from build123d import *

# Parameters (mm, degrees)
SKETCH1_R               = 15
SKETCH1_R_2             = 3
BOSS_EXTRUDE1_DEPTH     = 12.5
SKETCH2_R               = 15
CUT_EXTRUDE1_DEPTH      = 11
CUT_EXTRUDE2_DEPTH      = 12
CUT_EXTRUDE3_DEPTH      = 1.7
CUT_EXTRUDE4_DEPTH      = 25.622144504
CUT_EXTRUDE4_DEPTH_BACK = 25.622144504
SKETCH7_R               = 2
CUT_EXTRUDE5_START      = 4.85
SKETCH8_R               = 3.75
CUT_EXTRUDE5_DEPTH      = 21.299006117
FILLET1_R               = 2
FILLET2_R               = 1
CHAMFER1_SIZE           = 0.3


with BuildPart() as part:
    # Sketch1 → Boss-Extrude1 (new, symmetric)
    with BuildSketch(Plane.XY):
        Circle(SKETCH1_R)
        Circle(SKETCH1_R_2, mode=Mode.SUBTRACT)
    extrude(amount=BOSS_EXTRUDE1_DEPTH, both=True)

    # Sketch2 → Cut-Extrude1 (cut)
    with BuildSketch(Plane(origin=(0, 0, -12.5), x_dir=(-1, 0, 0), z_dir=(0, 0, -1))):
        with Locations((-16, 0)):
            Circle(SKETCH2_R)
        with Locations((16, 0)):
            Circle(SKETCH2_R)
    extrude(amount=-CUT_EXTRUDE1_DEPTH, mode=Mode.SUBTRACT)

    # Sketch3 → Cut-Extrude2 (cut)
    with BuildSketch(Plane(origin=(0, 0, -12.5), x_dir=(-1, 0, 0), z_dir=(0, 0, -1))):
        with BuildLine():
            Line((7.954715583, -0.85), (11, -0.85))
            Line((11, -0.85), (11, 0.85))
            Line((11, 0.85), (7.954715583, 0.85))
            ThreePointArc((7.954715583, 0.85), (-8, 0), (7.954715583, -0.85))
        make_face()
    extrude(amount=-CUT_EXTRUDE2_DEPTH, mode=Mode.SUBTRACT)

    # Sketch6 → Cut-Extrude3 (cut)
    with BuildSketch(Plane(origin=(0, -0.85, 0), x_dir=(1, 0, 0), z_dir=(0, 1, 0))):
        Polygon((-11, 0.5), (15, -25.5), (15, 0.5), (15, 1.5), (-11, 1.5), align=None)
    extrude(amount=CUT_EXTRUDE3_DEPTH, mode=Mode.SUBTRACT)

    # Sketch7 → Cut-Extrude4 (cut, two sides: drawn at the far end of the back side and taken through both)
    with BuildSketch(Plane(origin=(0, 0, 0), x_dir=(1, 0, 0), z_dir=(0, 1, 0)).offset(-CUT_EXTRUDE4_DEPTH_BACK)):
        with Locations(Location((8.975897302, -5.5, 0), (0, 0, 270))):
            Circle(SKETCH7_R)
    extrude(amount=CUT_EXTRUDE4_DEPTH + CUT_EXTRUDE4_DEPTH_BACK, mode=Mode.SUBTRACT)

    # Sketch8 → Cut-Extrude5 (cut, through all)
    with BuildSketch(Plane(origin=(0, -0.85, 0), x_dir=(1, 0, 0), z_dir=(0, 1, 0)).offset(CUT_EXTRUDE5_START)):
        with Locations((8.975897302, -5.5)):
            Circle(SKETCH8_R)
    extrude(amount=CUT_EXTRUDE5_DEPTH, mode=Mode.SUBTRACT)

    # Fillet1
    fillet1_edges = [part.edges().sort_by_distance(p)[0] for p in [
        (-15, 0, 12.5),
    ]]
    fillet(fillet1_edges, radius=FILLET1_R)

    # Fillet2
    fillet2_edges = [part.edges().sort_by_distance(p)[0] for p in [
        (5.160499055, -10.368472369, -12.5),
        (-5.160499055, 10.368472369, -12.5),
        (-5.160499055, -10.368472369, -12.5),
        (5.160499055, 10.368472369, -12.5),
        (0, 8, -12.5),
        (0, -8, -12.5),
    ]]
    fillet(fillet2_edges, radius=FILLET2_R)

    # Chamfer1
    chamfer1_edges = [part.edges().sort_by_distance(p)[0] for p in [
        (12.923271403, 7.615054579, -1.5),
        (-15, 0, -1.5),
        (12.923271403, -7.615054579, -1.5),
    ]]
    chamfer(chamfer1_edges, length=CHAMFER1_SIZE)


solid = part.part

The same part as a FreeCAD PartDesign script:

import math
import FreeCAD as App
import Part
import Sketcher
Q = App.Units.Quantity


def edges_at(feature, points):
    """Names of the edges that pass closest to the given points."""
    edges = feature.Shape.Edges
    near = lambda p: min(range(len(edges)), key=lambda i: edges[i].distToShape(Part.Vertex(*p))[0])
    return sorted({f"Edge{near(p) + 1}" for p in points})


def add_polygon(sketch, points):
    """Adds a closed chain of lines whose ends are joined by coincident constraints."""
    first, n = sketch.GeometryCount, len(points)
    for a, b in zip(points, points[1:] + points[:1]):
        sketch.addGeometry(Part.LineSegment(App.Vector(*a, 0), App.Vector(*b, 0)), False)
    for i in range(n):
        sketch.addConstraint(Sketcher.Constraint("Coincident", first + i, 2, first + (i + 1) % n, 1))

doc = App.newDocument("Part")
body = doc.addObject("PartDesign::Body", "Body")

# Sketch on XY plane
sketch1 = body.newObject("Sketcher::SketchObject", "Sketch")
sketch1.AttachmentSupport = (doc.getObject("XY_Plane"), [""])
sketch1.MapMode = "FlatFace"
sketch1.addGeometry([
    Part.Circle(App.Vector(0, 0, 0), App.Vector(0, 0, 1), 15),
    Part.Circle(App.Vector(0, 0, 0), App.Vector(0, 0, 1), 3),
], False)
sketch1.addConstraint([
    Sketcher.Constraint("Coincident", 0, 3, -1, 1),
    Sketcher.Constraint("Coincident", 1, 3, -1, 1),
    Sketcher.Constraint("Diameter", 0, Q("30 mm")),
    Sketcher.Constraint("Diameter", 1, Q("6 mm")),
])
pad1 = body.newObject("PartDesign::Pad", "Pad")
pad1.Profile = sketch1
pad1.Length = 25
pad1.Midplane = True

# Sketch on XY plane
sketch2 = body.newObject("Sketcher::SketchObject", "Sketch001")
sketch2.AttachmentSupport = (doc.getObject("XY_Plane"), [""])
sketch2.MapMode = "FlatFace"
sketch2.AttachmentOffset = App.Placement(App.Vector(0, 0, -12.5), App.Rotation())
sketch2.addGeometry([
    Part.Circle(App.Vector(16, 0, 0), App.Vector(0, 0, 1), 15),
    Part.Circle(App.Vector(-16, 0, 0), App.Vector(0, 0, 1), 15),
], False)
sketch2.addConstraint([
    Sketcher.Constraint("Equal", 0, 1),
    Sketcher.Constraint("Symmetric", 0, 3, 1, 3, -1, 1),
    Sketcher.Constraint("PointOnObject", 0, 3, -1),
    Sketcher.Constraint("Diameter", 0, Q("30 mm")),
    Sketcher.Constraint("DistanceX", -1, 1, 0, 3, Q("16 mm")),
])
pocket1 = body.newObject("PartDesign::Pocket", "Pocket")
pocket1.Profile = sketch2
pocket1.Length = 11
pocket1.Reversed = True

# Sketch on XY plane
sketch3 = body.newObject("Sketcher::SketchObject", "Sketch002")
sketch3.AttachmentSupport = (doc.getObject("XY_Plane"), [""])
sketch3.MapMode = "FlatFace"
sketch3.AttachmentOffset = App.Placement(App.Vector(0, 0, -12.5), App.Rotation())
sketch3.addGeometry([
    Part.LineSegment(App.Vector(-7.954716, -0.85, 0), App.Vector(-11, -0.85, 0)),
    Part.LineSegment(App.Vector(-11, -0.85, 0), App.Vector(-11, 0.85, 0)),
    Part.LineSegment(App.Vector(-11, 0.85, 0), App.Vector(-7.954716, 0.85, 0)),
    Part.ArcOfCircle(Part.Circle(App.Vector(0, 0, 0), App.Vector(0, 0, 1), 8), math.radians(-173.900811), math.radians(173.900811)),
], False)
sketch3.addConstraint([
    Sketcher.Constraint("Coincident", 0, 2, 1, 1),
    Sketcher.Constraint("Coincident", 1, 2, 2, 1),
    Sketcher.Constraint("Coincident", 2, 2, 3, 2),
    Sketcher.Constraint("Coincident", 3, 1, 0, 1),
    Sketcher.Constraint("Horizontal", 0),
    Sketcher.Constraint("Vertical", 1),
    Sketcher.Constraint("Horizontal", 2),
    Sketcher.Constraint("Coincident", 3, 3, -1, 1),
    Sketcher.Constraint("Vertical", 2, 2, 3, 1),
    Sketcher.Constraint("Radius", 3, Q("8 mm")),
    Sketcher.Constraint("DistanceY", 1, 1, 1, 2, Q("1.7 mm")),
    Sketcher.Constraint("DistanceX", 0, 2, -1, 1, Q("11 mm")),
])
pocket2 = body.newObject("PartDesign::Pocket", "Pocket001")
pocket2.Profile = sketch3
pocket2.Length = 12
pocket2.Reversed = True

# Sketch on XZ plane
sketch4 = body.newObject("Sketcher::SketchObject", "Sketch003")
sketch4.AttachmentSupport = (doc.getObject("XZ_Plane"), [""])
sketch4.MapMode = "FlatFace"
sketch4.AttachmentOffset = App.Placement(App.Vector(0, 0, 0.85), App.Rotation())
add_polygon(sketch4, [(-11, -0.5), (15, 25.5), (15, -1.5), (-11, -1.5)])  # lines 0-3
sketch4.addConstraint([
    Sketcher.Constraint("Vertical", 1),
    Sketcher.Constraint("Horizontal", 2),
    Sketcher.Constraint("Vertical", 3),
    Sketcher.Constraint("DistanceX", 2, 2, 2, 1, Q("26 mm")),
    Sketcher.Constraint("DistanceY", 1, 2, 1, 1, Q("27 mm")),
    Sketcher.Constraint("DistanceY", 3, 1, 3, 2, Q("1 mm")),
    Sketcher.Constraint("DistanceX", -1, 1, 0, 2, Q("15 mm")),
    Sketcher.Constraint("DistanceY", -1, 1, 0, 2, Q("25.5 mm")),
])
pocket3 = body.newObject("PartDesign::Pocket", "Pocket002")
pocket3.Profile = sketch4
pocket3.Length = 1.7

# Sketch on XZ plane
sketch5 = body.newObject("Sketcher::SketchObject", "Sketch004")
sketch5.AttachmentSupport = (doc.getObject("XZ_Plane"), [""])
sketch5.MapMode = "FlatFace"
sketch5.addGeometry(Part.Circle(App.Vector(8.975897, 5.5, 0), App.Vector(0, 0, 1), 2), False)
sketch5.addConstraint([
    Sketcher.Constraint("Diameter", 0, Q("4 mm")),
    Sketcher.Constraint("DistanceY", -1, 1, 0, 3, Q("5.5 mm")),
    Sketcher.Constraint("DistanceX", -1, 1, 0, 3, Q("8.975897 mm")),
])
pocket4 = body.newObject("PartDesign::Pocket", "Pocket003")
pocket4.Profile = sketch5
pocket4.Type = "ThroughAll"
pocket4.Midplane = True

# Sketch on XZ plane
sketch6 = body.newObject("Sketcher::SketchObject", "Sketch005")
sketch6.AttachmentSupport = (doc.getObject("XZ_Plane"), [""])
sketch6.MapMode = "FlatFace"
sketch6.AttachmentOffset = App.Placement(App.Vector(0, 0, -4), App.Rotation())
sketch6.addGeometry(Part.Circle(App.Vector(8.975897, 5.5, 0), App.Vector(0, 0, 1), 3.75), False)
sketch6.addConstraint([
    Sketcher.Constraint("Diameter", 0, Q("7.5 mm")),
    Sketcher.Constraint("DistanceY", -1, 1, 0, 3, Q("5.5 mm")),
    Sketcher.Constraint("DistanceX", -1, 1, 0, 3, Q("8.975897 mm")),
])
pocket5 = body.newObject("PartDesign::Pocket", "Pocket004")
pocket5.Profile = sketch6
pocket5.Type = "ThroughAll"
doc.recompute()

fillet = body.newObject("PartDesign::Fillet", "Fillet")
fillet.Base = (pocket5, edges_at(pocket5, [(-15, 0, 12.5)]))
fillet.Radius = 2
doc.recompute()

fillet2 = body.newObject("PartDesign::Fillet", "Fillet001")
fillet2.Base = (fillet, edges_at(fillet, [
    (5.16, -10.368, -12.5),
    (-5.16, 10.368, -12.5),
    (-5.16, -10.368, -12.5),
    (5.16, 10.368, -12.5),
    (0, 8, -12.5),
    (0, -8, -12.5),
]))
fillet2.Radius = 1
doc.recompute()

chamfer = body.newObject("PartDesign::Chamfer", "Chamfer")
chamfer.Base = (fillet2, edges_at(fillet2, [(12.923, 7.615, -1.5), (-15, 0, -1.5), (12.923, -7.615, -1.5)]))
chamfer.Size = 0.3

doc.recompute()
